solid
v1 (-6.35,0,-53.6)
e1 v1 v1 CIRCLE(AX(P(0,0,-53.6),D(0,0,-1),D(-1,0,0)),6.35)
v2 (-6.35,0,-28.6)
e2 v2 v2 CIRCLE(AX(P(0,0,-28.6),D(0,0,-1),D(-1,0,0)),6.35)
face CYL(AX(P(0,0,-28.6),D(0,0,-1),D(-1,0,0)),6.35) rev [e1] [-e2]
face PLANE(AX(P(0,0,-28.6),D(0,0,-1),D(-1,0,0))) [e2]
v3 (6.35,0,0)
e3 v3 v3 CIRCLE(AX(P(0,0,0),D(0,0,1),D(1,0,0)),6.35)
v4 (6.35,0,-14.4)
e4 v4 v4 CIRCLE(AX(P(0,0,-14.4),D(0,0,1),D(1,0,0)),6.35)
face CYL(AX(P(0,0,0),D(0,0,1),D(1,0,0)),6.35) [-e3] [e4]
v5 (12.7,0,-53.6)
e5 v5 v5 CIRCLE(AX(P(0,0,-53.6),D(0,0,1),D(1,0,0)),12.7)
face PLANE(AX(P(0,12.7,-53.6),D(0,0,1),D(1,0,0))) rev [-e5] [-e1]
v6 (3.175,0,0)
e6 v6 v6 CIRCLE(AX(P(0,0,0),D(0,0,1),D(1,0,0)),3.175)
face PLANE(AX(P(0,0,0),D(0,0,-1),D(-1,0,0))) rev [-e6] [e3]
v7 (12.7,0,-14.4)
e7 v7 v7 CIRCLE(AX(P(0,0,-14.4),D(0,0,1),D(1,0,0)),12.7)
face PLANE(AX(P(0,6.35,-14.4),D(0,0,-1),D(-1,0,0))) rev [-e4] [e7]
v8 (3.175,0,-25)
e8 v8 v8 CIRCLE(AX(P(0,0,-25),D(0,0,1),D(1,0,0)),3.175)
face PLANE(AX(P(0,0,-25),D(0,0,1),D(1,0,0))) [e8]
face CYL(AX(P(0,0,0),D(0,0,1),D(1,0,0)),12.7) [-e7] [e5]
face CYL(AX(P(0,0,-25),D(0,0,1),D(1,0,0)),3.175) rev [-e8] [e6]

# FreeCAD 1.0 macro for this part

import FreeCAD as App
import Part
import Sketcher
from FreeCAD import Vector
Q = App.Units.Quantity

doc = App.newDocument("Part")
body = doc.addObject("PartDesign::Body", "Body")

sketch1 = body.newObject("Sketcher::SketchObject", "Sketch")
sketch1.AttachmentSupport = (doc.getObject("YZ_Plane"), [""])
sketch1.MapMode = "FlatFace"
sketch1.addGeometry([
    Part.LineSegment(Vector(13, -14, 0), Vector(6, -14, 0)),
    Part.LineSegment(Vector(6, -14, 0), Vector(6, 0, 0)),
    Part.LineSegment(Vector(6, 0, 0), Vector(0, 0, 0)),
    Part.LineSegment(Vector(0, 0, 0), Vector(0, -54, 0)),
    Part.LineSegment(Vector(0, -54, 0), Vector(13, -54, 0)),
    Part.LineSegment(Vector(13, -54, 0), Vector(13, -14, 0)),
], False)
sketch1.addConstraint([
    Sketcher.Constraint("Coincident", 0, 2, 1, 1),
    Sketcher.Constraint("Coincident", 1, 2, 2, 1),
    Sketcher.Constraint("Coincident", 2, 2, 3, 1),
    Sketcher.Constraint("Coincident", 3, 2, 4, 1),
    Sketcher.Constraint("Coincident", 4, 2, 5, 1),
    Sketcher.Constraint("Coincident", 5, 2, 0, 1),
    Sketcher.Constraint("Horizontal", 0),
    Sketcher.Constraint("Vertical", 1),
    Sketcher.Constraint("Horizontal", 2),
    Sketcher.Constraint("Vertical", 3),
    Sketcher.Constraint("Horizontal", 4),
    Sketcher.Constraint("Vertical", 5),
    Sketcher.Constraint("Coincident", 2, 2, -1, 1),
    Sketcher.Constraint("Equal", 0, 2),
    Sketcher.Constraint("DistanceX", 4, 1, 4, 2, Q("12.7 mm")),
    Sketcher.Constraint("DistanceY", 1, 1, 1, 2, Q("14.4 mm")),
    Sketcher.Constraint("DistanceY", 3, 2, 3, 1, Q("53.6 mm")),
])
revolution = body.newObject("PartDesign::Revolution", "Revolution")
revolution.Profile = sketch1
revolution.ReferenceAxis = (sketch1, ["V_Axis"])
revolution.Angle = 360

sketch2 = body.newObject("Sketcher::SketchObject", "Sketch001")
sketch2.AttachmentSupport = (doc.getObject("XY_Plane"), [""])
sketch2.MapMode = "FlatFace"
sketch2.addGeometry(Part.Circle(Vector(0, 0, 0), Vector(0, 0, 1), 3.2), False)
sketch2.addConstraint([
    Sketcher.Constraint("Coincident", 0, 3, -1, 1),
    Sketcher.Constraint("Diameter", 0, Q("6.35 mm")),
])
pocket1 = body.newObject("PartDesign::Pocket", "Pocket")
pocket1.Profile = sketch2
pocket1.Length = 25

sketch3 = body.newObject("Sketcher::SketchObject", "Sketch002")
sketch3.AttachmentSupport = (doc.getObject("XY_Plane"), [""])
sketch3.MapMode = "FlatFace"
sketch3.AttachmentOffset = App.Placement(Vector(0, 0, -53.6), App.Rotation())
sketch3.addGeometry(Part.Circle(Vector(0, 0, 0), Vector(0, 0, 1), 6), False)
sketch3.addConstraint([
    Sketcher.Constraint("Coincident", 0, 3, -1, 1),
    Sketcher.Constraint("Diameter", 0, Q("12.7 mm")),
])
pocket2 = body.newObject("PartDesign::Pocket", "Pocket001")
pocket2.Profile = sketch3
pocket2.Length = 25
pocket2.Reversed = True

doc.recompute()
